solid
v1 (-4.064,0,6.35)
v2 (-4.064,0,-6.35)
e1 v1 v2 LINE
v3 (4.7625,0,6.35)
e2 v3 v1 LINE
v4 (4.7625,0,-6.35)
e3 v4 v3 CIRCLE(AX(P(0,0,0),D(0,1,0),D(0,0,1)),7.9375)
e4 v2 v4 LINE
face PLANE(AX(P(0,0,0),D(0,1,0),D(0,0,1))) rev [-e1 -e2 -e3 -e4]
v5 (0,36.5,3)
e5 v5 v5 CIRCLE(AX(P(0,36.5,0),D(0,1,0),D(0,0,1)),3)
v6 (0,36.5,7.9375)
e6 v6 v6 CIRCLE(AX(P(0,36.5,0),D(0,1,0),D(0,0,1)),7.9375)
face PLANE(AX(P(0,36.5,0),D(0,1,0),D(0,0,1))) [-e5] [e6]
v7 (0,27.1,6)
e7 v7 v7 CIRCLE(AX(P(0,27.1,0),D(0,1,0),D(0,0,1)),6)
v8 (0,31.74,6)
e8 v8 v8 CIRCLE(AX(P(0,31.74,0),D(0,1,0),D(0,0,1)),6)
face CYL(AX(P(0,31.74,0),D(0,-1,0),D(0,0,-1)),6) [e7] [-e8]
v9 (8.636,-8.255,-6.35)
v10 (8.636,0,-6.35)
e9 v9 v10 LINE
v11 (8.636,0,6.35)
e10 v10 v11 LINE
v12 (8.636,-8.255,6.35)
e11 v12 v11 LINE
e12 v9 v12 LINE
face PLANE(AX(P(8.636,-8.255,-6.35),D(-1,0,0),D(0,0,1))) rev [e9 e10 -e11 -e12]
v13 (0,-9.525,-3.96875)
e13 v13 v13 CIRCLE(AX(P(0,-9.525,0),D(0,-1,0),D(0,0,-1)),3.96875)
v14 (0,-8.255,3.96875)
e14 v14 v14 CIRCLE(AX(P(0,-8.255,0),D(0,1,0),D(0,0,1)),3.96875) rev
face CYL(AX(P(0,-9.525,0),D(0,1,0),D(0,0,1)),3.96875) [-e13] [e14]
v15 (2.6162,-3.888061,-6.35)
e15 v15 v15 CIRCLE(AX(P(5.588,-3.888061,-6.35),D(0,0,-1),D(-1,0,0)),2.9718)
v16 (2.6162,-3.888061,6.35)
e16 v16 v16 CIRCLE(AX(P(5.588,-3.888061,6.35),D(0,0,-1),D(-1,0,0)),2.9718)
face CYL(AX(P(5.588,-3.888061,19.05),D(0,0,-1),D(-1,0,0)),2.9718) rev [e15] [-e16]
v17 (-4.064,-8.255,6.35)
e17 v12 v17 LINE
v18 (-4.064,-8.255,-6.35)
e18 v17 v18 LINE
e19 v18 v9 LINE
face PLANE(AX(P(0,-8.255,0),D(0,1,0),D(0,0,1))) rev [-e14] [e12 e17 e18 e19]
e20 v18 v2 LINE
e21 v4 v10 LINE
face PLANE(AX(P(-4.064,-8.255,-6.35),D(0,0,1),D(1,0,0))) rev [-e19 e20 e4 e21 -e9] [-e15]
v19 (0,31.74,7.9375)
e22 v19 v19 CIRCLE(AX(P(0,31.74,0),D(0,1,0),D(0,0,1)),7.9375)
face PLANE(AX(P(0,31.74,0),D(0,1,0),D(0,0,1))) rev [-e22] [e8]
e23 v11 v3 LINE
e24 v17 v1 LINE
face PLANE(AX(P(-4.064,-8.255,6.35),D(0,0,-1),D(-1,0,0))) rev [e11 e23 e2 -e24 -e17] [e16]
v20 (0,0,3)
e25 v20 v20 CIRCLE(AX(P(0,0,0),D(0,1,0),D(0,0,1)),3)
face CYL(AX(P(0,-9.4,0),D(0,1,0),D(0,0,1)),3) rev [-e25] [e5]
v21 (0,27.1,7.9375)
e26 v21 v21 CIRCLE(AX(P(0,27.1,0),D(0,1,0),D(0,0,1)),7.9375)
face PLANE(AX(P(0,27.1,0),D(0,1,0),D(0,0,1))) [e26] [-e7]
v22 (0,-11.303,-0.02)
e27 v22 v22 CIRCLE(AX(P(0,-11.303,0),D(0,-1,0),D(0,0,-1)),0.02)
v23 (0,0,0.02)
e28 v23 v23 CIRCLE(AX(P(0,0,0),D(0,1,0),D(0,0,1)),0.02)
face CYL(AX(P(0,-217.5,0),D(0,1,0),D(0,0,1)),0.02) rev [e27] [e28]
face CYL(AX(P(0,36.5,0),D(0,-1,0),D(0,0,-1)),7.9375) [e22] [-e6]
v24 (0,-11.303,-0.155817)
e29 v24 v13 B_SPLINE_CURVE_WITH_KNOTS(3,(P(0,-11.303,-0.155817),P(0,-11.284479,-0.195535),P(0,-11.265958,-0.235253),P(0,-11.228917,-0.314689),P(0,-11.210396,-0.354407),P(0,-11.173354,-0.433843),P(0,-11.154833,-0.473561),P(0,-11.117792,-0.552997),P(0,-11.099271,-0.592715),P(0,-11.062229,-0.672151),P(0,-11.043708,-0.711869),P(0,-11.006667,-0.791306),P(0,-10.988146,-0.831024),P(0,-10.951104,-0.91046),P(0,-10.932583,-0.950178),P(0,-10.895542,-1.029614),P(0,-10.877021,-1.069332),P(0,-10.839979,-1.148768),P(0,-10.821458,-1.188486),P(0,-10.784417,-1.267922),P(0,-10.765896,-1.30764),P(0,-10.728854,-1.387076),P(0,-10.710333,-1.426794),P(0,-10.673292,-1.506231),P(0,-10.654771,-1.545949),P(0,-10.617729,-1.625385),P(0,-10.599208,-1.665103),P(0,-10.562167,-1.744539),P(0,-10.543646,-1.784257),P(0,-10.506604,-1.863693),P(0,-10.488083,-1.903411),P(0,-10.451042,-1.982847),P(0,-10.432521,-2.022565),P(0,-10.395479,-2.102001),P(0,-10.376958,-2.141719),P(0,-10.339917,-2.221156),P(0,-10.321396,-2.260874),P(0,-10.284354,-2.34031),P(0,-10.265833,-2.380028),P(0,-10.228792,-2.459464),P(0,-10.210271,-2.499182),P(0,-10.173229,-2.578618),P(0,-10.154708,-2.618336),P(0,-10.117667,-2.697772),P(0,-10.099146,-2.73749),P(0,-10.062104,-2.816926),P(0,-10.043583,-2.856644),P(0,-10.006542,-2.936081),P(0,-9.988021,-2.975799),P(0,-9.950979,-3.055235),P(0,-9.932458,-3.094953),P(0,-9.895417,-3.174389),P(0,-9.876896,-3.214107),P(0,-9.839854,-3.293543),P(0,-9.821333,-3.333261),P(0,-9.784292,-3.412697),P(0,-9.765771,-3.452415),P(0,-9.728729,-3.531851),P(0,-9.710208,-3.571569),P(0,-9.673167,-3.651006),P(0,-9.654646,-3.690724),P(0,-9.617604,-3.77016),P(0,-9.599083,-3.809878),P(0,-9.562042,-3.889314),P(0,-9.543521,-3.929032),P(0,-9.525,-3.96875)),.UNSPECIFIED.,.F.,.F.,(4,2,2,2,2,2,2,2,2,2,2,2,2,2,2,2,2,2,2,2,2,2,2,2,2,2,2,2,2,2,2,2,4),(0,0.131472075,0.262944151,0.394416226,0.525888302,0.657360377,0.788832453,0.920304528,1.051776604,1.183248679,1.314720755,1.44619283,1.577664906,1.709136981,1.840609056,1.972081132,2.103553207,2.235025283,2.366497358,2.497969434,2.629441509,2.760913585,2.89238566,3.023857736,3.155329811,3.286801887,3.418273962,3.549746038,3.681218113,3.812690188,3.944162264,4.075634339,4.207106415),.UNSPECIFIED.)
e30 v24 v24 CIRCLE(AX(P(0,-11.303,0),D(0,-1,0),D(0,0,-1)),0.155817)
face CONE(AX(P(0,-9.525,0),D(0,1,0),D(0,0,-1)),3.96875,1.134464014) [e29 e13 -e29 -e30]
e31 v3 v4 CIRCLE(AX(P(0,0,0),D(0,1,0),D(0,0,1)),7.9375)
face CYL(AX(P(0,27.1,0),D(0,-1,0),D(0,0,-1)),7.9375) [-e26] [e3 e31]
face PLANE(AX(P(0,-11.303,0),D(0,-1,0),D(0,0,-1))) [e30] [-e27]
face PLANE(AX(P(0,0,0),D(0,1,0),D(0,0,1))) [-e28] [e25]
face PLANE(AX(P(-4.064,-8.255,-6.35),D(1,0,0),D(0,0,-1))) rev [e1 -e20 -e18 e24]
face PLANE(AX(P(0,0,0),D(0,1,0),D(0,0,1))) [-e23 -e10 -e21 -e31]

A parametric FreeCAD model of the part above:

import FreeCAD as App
import Part
import Sketcher
Q = App.Units.Quantity


def add_polygon(sketch, points):
    """Adds a closed chain of lines whose ends are joined by coincident constraints."""
    first, n = sketch.GeometryCount, len(points)
    for a, b in zip(points, points[1:] + points[:1]):
        sketch.addGeometry(Part.LineSegment(App.Vector(*a, 0), App.Vector(*b, 0)), False)
    for i in range(n):
        sketch.addConstraint(Sketcher.Constraint("Coincident", first + i, 2, first + (i + 1) % n, 1))

doc = App.newDocument("Part")
params = doc.addObject("Spreadsheet::Sheet", "Params")
for row, (alias, value) in enumerate([
    ("sketch1_diameter", "0.625 in"),
    ("pad1_length", "27.1 mm"),
    ("pocket1_length", "36.5 mm"),
    ("pad2_length", "4.64 mm"),
    ("sketch4_diameter", "0.625 in"),
    ("pad3_length", "4.76 mm"),
    ("pocket2_length", "81.214 mm"),
    ("sketch6_width", "0.5 in"),
    ("pad4_length", "0.325 in"),
    ("sketch7_diameter", "0.3125 in"),
    ("pad5_length", "0.05 in"),
    ("sketch8_diameter", "0.3125 in"),
    ("pad6_length", "0.07 in"),
    ("pad6_taper", "-65 deg"),
    ("sketch9_diameter", "0.234 in"),
    ("pocket3_length", "1 in"),
    ("pocket4_length", "10 in"),
], start=1):
    params.set(f"A{row}", alias)
    params.set(f"B{row}", "=" + value)
    params.setAlias(f"B{row}", alias)

body = doc.addObject("PartDesign::Body", "Body")

# Sketch on XZ plane
sketch1 = body.newObject("Sketcher::SketchObject", "Sketch")
sketch1.AttachmentSupport = (doc.getObject("XZ_Plane"), [""])
sketch1.MapMode = "FlatFace"
sketch1.addGeometry(Part.Circle(App.Vector(0, 0, 0), App.Vector(0, 0, 1), 8), False)
sketch1.addConstraint([
    Sketcher.Constraint("Coincident", 0, 3, -1, 1),
    Sketcher.Constraint("Diameter", 0, Q("0.625 in")),
])
sketch1.setExpression("Constraints[1]", "Params.sketch1_diameter")
pad1 = body.newObject("PartDesign::Pad", "Pad")
pad1.Profile = sketch1
pad1.setExpression("Length", "Params.pad1_length")
pad1.Reversed = True

# Sketch on XZ plane
sketch2 = body.newObject("Sketcher::SketchObject", "Sketch001")
sketch2.AttachmentSupport = (doc.getObject("XZ_Plane"), [""])
sketch2.MapMode = "FlatFace"
sketch2.AttachmentOffset = App.Placement(App.Vector(0, 0, -27.1), App.Rotation())
sketch2.addGeometry(Part.Circle(App.Vector(0, 0, 0), App.Vector(0, 0, 1), 3), False)
sketch2.addConstraint([
    Sketcher.Constraint("Coincident", 0, 3, -1, 1),
    Sketcher.Constraint("Diameter", 0, 6.0),
])
pocket1 = body.newObject("PartDesign::Pocket", "Pocket")
pocket1.Profile = sketch2
pocket1.setExpression("Length", "Params.pocket1_length")
pocket1.Reversed = True

# Sketch on XZ plane
sketch3 = body.newObject("Sketcher::SketchObject", "Sketch002")
sketch3.AttachmentSupport = (doc.getObject("XZ_Plane"), [""])
sketch3.MapMode = "FlatFace"
sketch3.AttachmentOffset = App.Placement(App.Vector(0, 0, -27.1), App.Rotation())
sketch3.addGeometry(Part.Circle(App.Vector(0, 0, 0), App.Vector(0, 0, 1), 6), False)
sketch3.addConstraint([
    Sketcher.Constraint("Coincident", 0, 3, -1, 1),
    Sketcher.Constraint("Diameter", 0, 12.0),
])
pad2 = body.newObject("PartDesign::Pad", "Pad001")
pad2.Profile = sketch3
pad2.setExpression("Length", "Params.pad2_length")
pad2.Reversed = True

# Sketch on XZ plane
sketch4 = body.newObject("Sketcher::SketchObject", "Sketch003")
sketch4.AttachmentSupport = (doc.getObject("XZ_Plane"), [""])
sketch4.MapMode = "FlatFace"
sketch4.AttachmentOffset = App.Placement(App.Vector(0, 0, -31.74), App.Rotation())
sketch4.addGeometry(Part.Circle(App.Vector(0, 0, 0), App.Vector(0, 0, 1), 8), False)
sketch4.addConstraint([
    Sketcher.Constraint("Coincident", 0, 3, -1, 1),
    Sketcher.Constraint("Diameter", 0, Q("0.625 in")),
])
sketch4.setExpression("Constraints[1]", "Params.sketch4_diameter")
pad3 = body.newObject("PartDesign::Pad", "Pad002")
pad3.Profile = sketch4
pad3.setExpression("Length", "Params.pad3_length")
pad3.Reversed = True

# Sketch on XZ plane
sketch5 = body.newObject("Sketcher::SketchObject", "Sketch004")
sketch5.AttachmentSupport = (doc.getObject("XZ_Plane"), [""])
sketch5.MapMode = "FlatFace"
sketch5.AttachmentOffset = App.Placement(App.Vector(0, 0, -81.214), App.Rotation())
sketch5.addGeometry(Part.Circle(App.Vector(0, 0, 0), App.Vector(0, 0, 1), 3), False)
sketch5.addConstraint([
    Sketcher.Constraint("Coincident", 0, 3, -1, 1),
    Sketcher.Constraint("Diameter", 0, 6.0),
])
pocket2 = body.newObject("PartDesign::Pocket", "Pocket001")
pocket2.Profile = sketch5
pocket2.setExpression("Length", "Params.pocket2_length")
pocket2.Reversed = True

# Sketch on XZ plane
sketch6 = body.newObject("Sketcher::SketchObject", "Sketch005")
sketch6.AttachmentSupport = (doc.getObject("XZ_Plane"), [""])
sketch6.MapMode = "FlatFace"
add_polygon(sketch6, [(-4, 6), (-4, -6), (9, -6), (9, 6)])  # lines 0-3
sketch6.addConstraint([
    Sketcher.Constraint("Vertical", 0),
    Sketcher.Constraint("Horizontal", 1),
    Sketcher.Constraint("Vertical", 2),
    Sketcher.Constraint("Horizontal", 3),
    Sketcher.Constraint("Equal", 3, 0),
    Sketcher.Constraint("DistanceX", 1, 1, 1, 2, Q("0.5 in")),
    Sketcher.Constraint("DistanceX", 0, 2, -1, 1, Q("0.16 in")),
    Sketcher.Constraint("DistanceY", 0, 2, -1, 1, Q("0.25 in")),
])
sketch6.setExpression("Constraints[9]", "Params.sketch6_width")
pad4 = body.newObject("PartDesign::Pad", "Pad003")
pad4.Profile = sketch6
pad4.setExpression("Length", "Params.pad4_length")

# Sketch on XZ plane
sketch7 = body.newObject("Sketcher::SketchObject", "Sketch006")
sketch7.AttachmentSupport = (doc.getObject("XZ_Plane"), [""])
sketch7.MapMode = "FlatFace"
sketch7.AttachmentOffset = App.Placement(App.Vector(0, 0, 0.325 * 25.4), App.Rotation())
sketch7.addGeometry(Part.Circle(App.Vector(0, 0, 0), App.Vector(0, 0, 1), 4), False)
sketch7.addConstraint([
    Sketcher.Constraint("Coincident", 0, 3, -1, 1),
    Sketcher.Constraint("Diameter", 0, Q("0.3125 in")),
])
sketch7.setExpression("Constraints[1]", "Params.sketch7_diameter")
pad5 = body.newObject("PartDesign::Pad", "Pad004")
pad5.Profile = sketch7
pad5.setExpression("Length", "Params.pad5_length")

# Sketch on XZ plane
sketch8 = body.newObject("Sketcher::SketchObject", "Sketch007")
sketch8.AttachmentSupport = (doc.getObject("XZ_Plane"), [""])
sketch8.MapMode = "FlatFace"
sketch8.AttachmentOffset = App.Placement(App.Vector(0, 0, 0.375 * 25.4), App.Rotation())
sketch8.addGeometry(Part.Circle(App.Vector(0, 0, 0), App.Vector(0, 0, 1), 4), False)
sketch8.addConstraint([
    Sketcher.Constraint("Coincident", 0, 3, -1, 1),
    Sketcher.Constraint("Diameter", 0, Q("0.3125 in")),
])
sketch8.setExpression("Constraints[1]", "Params.sketch8_diameter")
pad6 = body.newObject("PartDesign::Pad", "Pad005")
pad6.Profile = sketch8
pad6.setExpression("Length", "Params.pad6_length")
pad6.setExpression("TaperAngle", "Params.pad6_taper")

# Sketch on XY plane
sketch9 = body.newObject("Sketcher::SketchObject", "Sketch008")
sketch9.AttachmentSupport = (doc.getObject("XY_Plane"), [""])
sketch9.MapMode = "FlatFace"
sketch9.AttachmentOffset = App.Placement(App.Vector(0, 0, -0.25 * 25.4), App.Rotation())
sketch9.addGeometry(Part.Circle(App.Vector(5.6, -3.9, 0), App.Vector(0, 0, 1), 3), False)
sketch9.addConstraint([
    Sketcher.Constraint("Diameter", 0, Q("0.234 in")),
    Sketcher.Constraint("DistanceX", -1, 1, 0, 3, Q("0.22 in")),
    Sketcher.Constraint("DistanceY", 0, 3, -1, 1, 3.888061),
])
sketch9.setExpression("Constraints[0]", "Params.sketch9_diameter")
pocket3 = body.newObject("PartDesign::Pocket", "Pocket002")
pocket3.Profile = sketch9
pocket3.setExpression("Length", "Params.pocket3_length")
pocket3.Reversed = True

# Sketch on XZ plane
sketch10 = body.newObject("Sketcher::SketchObject", "Sketch009")
sketch10.AttachmentSupport = (doc.getObject("XZ_Plane"), [""])
sketch10.MapMode = "FlatFace"
sketch10.AttachmentOffset = App.Placement(App.Vector(0, 0, -36.5), App.Rotation())
sketch10.addGeometry(Part.Circle(App.Vector(0, 0, 0), App.Vector(0, 0, 1), 0.02), False)
sketch10.addConstraint([
    Sketcher.Constraint("Coincident", 0, 3, -1, 1),
    Sketcher.Constraint("Diameter", 0, 0.04),
])
pocket4 = body.newObject("PartDesign::Pocket", "Pocket003")
pocket4.Profile = sketch10
pocket4.setExpression("Length", "Params.pocket4_length")
pocket4.Reversed = True

doc.recompute()
